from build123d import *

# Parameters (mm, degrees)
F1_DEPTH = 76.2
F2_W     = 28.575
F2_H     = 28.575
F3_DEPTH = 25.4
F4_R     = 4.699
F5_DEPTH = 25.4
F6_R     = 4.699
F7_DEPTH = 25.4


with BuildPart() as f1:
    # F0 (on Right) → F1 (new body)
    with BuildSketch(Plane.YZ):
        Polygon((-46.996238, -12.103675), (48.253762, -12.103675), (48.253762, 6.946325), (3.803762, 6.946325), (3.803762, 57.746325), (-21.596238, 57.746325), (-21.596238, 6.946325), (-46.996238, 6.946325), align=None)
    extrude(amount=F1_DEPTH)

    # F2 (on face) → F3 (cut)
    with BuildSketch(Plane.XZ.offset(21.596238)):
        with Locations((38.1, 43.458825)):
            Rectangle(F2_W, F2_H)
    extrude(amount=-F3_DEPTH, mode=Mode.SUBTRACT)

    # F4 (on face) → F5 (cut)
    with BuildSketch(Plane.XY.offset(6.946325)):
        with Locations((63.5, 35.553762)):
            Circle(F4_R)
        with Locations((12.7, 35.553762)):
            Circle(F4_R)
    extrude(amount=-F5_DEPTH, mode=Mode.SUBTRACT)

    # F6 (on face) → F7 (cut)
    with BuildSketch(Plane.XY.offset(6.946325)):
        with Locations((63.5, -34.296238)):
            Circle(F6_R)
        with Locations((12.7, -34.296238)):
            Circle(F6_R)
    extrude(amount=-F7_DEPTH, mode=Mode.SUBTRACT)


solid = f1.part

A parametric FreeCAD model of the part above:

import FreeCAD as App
import Part
import Sketcher
Q = App.Units.Quantity


def add_polygon(sketch, points):
    """Adds a closed chain of lines whose ends are joined by coincident constraints."""
    first, n = sketch.GeometryCount, len(points)
    for a, b in zip(points, points[1:] + points[:1]):
        sketch.addGeometry(Part.LineSegment(App.Vector(*a, 0), App.Vector(*b, 0)), False)
    for i in range(n):
        sketch.addConstraint(Sketcher.Constraint("Coincident", first + i, 2, first + (i + 1) % n, 1))

doc = App.newDocument("Part")
body = doc.addObject("PartDesign::Body", "Body")

sketch1 = body.newObject("Sketcher::SketchObject", "Sketch")
sketch1.AttachmentSupport = (doc.getObject("YZ_Plane"), [""])
sketch1.MapMode = "FlatFace"
add_polygon(sketch1, [(-47, -12), (48, -12), (48, 7), (4, 7), (4, 58), (-22, 58), (-22, 7), (-47, 7)])
sketch1.addConstraint([
    Sketcher.Constraint("Horizontal", 0),
    Sketcher.Constraint("Vertical", 1),
    Sketcher.Constraint("Horizontal", 2),
    Sketcher.Constraint("Vertical", 3),
    Sketcher.Constraint("Horizontal", 4),
    Sketcher.Constraint("Vertical", 5),
    Sketcher.Constraint("Horizontal", 6),
    Sketcher.Constraint("Vertical", 7),
    Sketcher.Constraint("Horizontal", 2, 2, 5, 2),
    Sketcher.Constraint("Equal", 4, 6),
    Sketcher.Constraint("DistanceX", 4, 2, 4, 1, Q("1 in")),
    Sketcher.Constraint("DistanceY", 3, 1, 3, 2, Q("2 in")),
    Sketcher.Constraint("DistanceX", 0, 1, 0, 2, Q("3.75 in")),
    Sketcher.Constraint("DistanceY", 1, 1, 1, 2, Q("0.75 in")),
    Sketcher.Constraint("DistanceX", -1, 1, 2, 2, 3.803762),
    Sketcher.Constraint("DistanceY", 0, 2, -1, 1, 12.103675),
])
pad1 = body.newObject("PartDesign::Pad", "Pad")
pad1.Profile = sketch1
pad1.Length = Q("3 in")

sketch2 = body.newObject("Sketcher::SketchObject", "Sketch001")
sketch2.AttachmentSupport = (doc.getObject("XZ_Plane"), [""])
sketch2.MapMode = "FlatFace"
sketch2.AttachmentOffset = App.Placement(App.Vector(0, 0, 21.596238), App.Rotation())
add_polygon(sketch2, [(24, 58), (24, 29), (52, 29), (52, 58)])
sketch2.addConstraint([
    Sketcher.Constraint("Vertical", 0),
    Sketcher.Constraint("Horizontal", 1),
    Sketcher.Constraint("Vertical", 2),
    Sketcher.Constraint("Horizontal", 3),
    Sketcher.Constraint("Equal", 3, 0),
    Sketcher.Constraint("DistanceX", 1, 1, 1, 2, Q("1.125 in")),
    Sketcher.Constraint("DistanceX", -1, 1, 0, 2, Q("0.9375 in")),
    Sketcher.Constraint("DistanceY", -1, 1, 0, 2, 29.171325),
])
pocket1 = body.newObject("PartDesign::Pocket", "Pocket")
pocket1.Profile = sketch2
pocket1.Length = Q("1 in")

sketch3 = body.newObject("Sketcher::SketchObject", "Sketch002")
sketch3.AttachmentSupport = (doc.getObject("XY_Plane"), [""])
sketch3.MapMode = "FlatFace"
sketch3.AttachmentOffset = App.Placement(App.Vector(0, 0, 6.946325), App.Rotation())
sketch3.addGeometry([
    Part.Circle(App.Vector(63.5, 35.6, 0), App.Vector(0, 0, 1), 4.7),
    Part.Circle(App.Vector(12.7, 35.6, 0), App.Vector(0, 0, 1), 4.7),
], False)
sketch3.addConstraint([
    Sketcher.Constraint("Equal", 0, 1),
    Sketcher.Constraint("Horizontal", 0, 3, 1, 3),
    Sketcher.Constraint("Diameter", 0, Q("0.37 in")),
    Sketcher.Constraint("DistanceX", 1, 3, 0, 3, Q("2 in")),
    Sketcher.Constraint("DistanceX", -1, 1, 0, 3, Q("2.5 in")),
    Sketcher.Constraint("DistanceY", -1, 1, 0, 3, 35.553762),
])
pocket2 = body.newObject("PartDesign::Pocket", "Pocket001")
pocket2.Profile = sketch3
pocket2.Length = Q("1 in")

sketch4 = body.newObject("Sketcher::SketchObject", "Sketch003")
sketch4.AttachmentSupport = (doc.getObject("XY_Plane"), [""])
sketch4.MapMode = "FlatFace"
sketch4.AttachmentOffset = App.Placement(App.Vector(0, 0, 6.946325), App.Rotation())
sketch4.addGeometry([
    Part.Circle(App.Vector(63.5, -34.3, 0), App.Vector(0, 0, 1), 4.7),
    Part.Circle(App.Vector(12.7, -34.3, 0), App.Vector(0, 0, 1), 4.7),
], False)
sketch4.addConstraint([
    Sketcher.Constraint("Equal", 0, 1),
    Sketcher.Constraint("Horizontal", 0, 3, 1, 3),
    Sketcher.Constraint("Diameter", 0, Q("0.37 in")),
    Sketcher.Constraint("DistanceX", 1, 3, 0, 3, Q("2 in")),
    Sketcher.Constraint("DistanceX", -1, 1, 0, 3, Q("2.5 in")),
    Sketcher.Constraint("DistanceY", 0, 3, -1, 1, 34.296238),
])
pocket3 = body.newObject("PartDesign::Pocket", "Pocket002")
pocket3.Profile = sketch4
pocket3.Length = Q("1 in")

doc.recompute()
